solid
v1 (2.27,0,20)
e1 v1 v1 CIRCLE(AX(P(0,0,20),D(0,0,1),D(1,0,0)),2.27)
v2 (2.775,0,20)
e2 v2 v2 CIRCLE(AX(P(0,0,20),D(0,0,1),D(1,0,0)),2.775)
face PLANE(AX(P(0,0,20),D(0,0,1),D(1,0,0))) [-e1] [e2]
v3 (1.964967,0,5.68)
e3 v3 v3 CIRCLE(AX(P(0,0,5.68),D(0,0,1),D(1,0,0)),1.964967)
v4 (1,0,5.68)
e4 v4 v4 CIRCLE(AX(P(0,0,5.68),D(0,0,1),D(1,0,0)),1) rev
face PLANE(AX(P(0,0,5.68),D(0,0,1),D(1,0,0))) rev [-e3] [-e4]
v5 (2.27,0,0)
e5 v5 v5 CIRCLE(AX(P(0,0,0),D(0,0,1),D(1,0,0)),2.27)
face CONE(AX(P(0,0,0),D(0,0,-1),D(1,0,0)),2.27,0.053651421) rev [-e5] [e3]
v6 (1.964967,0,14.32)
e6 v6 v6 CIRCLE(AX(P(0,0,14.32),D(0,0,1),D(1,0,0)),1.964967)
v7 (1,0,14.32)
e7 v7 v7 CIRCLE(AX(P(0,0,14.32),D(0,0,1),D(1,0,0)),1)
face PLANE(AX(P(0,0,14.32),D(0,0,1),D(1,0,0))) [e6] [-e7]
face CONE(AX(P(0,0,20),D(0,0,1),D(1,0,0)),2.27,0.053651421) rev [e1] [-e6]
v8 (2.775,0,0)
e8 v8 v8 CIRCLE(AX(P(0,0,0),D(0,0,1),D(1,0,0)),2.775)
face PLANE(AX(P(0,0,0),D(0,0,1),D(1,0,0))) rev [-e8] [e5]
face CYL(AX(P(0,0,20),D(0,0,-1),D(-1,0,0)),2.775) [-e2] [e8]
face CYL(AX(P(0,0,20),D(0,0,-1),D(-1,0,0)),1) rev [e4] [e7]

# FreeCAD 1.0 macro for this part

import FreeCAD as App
import Part
import Sketcher
from FreeCAD import Vector
Q = App.Units.Quantity

doc = App.newDocument("Part")
params = doc.addObject("Spreadsheet::Sheet", "Params")
for row, (alias, value) in enumerate([
    ("sketch1_diameter", "5.55 mm"),
    ("pad1_length", "20 mm"),
    ("sketch2_diameter", "4.54 mm"),
    ("pocket1_length", "5.68 mm"),
    ("pocket1_taper", "-3.074 deg"),
    ("sketch3_diameter", "2 mm"),
    ("sketch4_diameter", "4.54 mm"),
    ("pocket3_length", "5.68 mm"),
    ("pocket3_taper", "-3.074 deg"),
], start=1):
    params.set(f"A{row}", alias)
    params.set(f"B{row}", "=" + value)
    params.setAlias(f"B{row}", alias)

body = doc.addObject("PartDesign::Body", "Body")

sketch1 = body.newObject("Sketcher::SketchObject", "Sketch")
sketch1.AttachmentSupport = (doc.getObject("XY_Plane"), [""])
sketch1.MapMode = "FlatFace"
sketch1.addGeometry(Part.Circle(Vector(0, 0, 0), Vector(0, 0, 1), 2.8), False)
sketch1.addConstraint([
    Sketcher.Constraint("Coincident", 0, 3, -1, 1),
    Sketcher.Constraint("Diameter", 0, Q("5.55 mm")),
])
sketch1.setExpression("Constraints[1]", "Params.sketch1_diameter")
pad1 = body.newObject("PartDesign::Pad", "Pad")
pad1.Profile = sketch1
pad1.setExpression("Length", "Params.pad1_length")

sketch2 = body.newObject("Sketcher::SketchObject", "Sketch001")
sketch2.AttachmentSupport = (doc.getObject("XY_Plane"), [""])
sketch2.MapMode = "FlatFace"
sketch2.addGeometry(Part.Circle(Vector(0, 0, 0), Vector(0, 0, 1), 2.3), False)
sketch2.addConstraint([
    Sketcher.Constraint("Coincident", 0, 3, -1, 1),
    Sketcher.Constraint("Diameter", 0, Q("4.54 mm")),
])
sketch2.setExpression("Constraints[1]", "Params.sketch2_diameter")
pocket1 = body.newObject("PartDesign::Pocket", "Pocket")
pocket1.Profile = sketch2
pocket1.setExpression("Length", "Params.pocket1_length")
pocket1.Reversed = True
pocket1.setExpression("TaperAngle", "Params.pocket1_taper")

sketch3 = body.newObject("Sketcher::SketchObject", "Sketch002")
sketch3.AttachmentSupport = (doc.getObject("XY_Plane"), [""])
sketch3.MapMode = "FlatFace"
sketch3.addGeometry(Part.Circle(Vector(0, 0, 0), Vector(0, 0, 1), 1), False)
sketch3.addConstraint([
    Sketcher.Constraint("Coincident", 0, 3, -1, 1),
    Sketcher.Constraint("Diameter", 0, Q("2 mm")),
])
sketch3.setExpression("Constraints[1]", "Params.sketch3_diameter")
pocket2 = body.newObject("PartDesign::Pocket", "Pocket001")
pocket2.Profile = sketch3
pocket2.Type = "ThroughAll"
pocket2.Reversed = True

sketch4 = body.newObject("Sketcher::SketchObject", "Sketch003")
sketch4.AttachmentSupport = (doc.getObject("XY_Plane"), [""])
sketch4.MapMode = "FlatFace"
sketch4.AttachmentOffset = App.Placement(Vector(0, 0, 20), App.Rotation())
sketch4.addGeometry(Part.Circle(Vector(0, 0, 0), Vector(0, 0, 1), 2.3), False)
sketch4.addConstraint([
    Sketcher.Constraint("Coincident", 0, 3, -1, 1),
    Sketcher.Constraint("Diameter", 0, Q("4.54 mm")),
])
sketch4.setExpression("Constraints[1]", "Params.sketch4_diameter")
pocket3 = body.newObject("PartDesign::Pocket", "Pocket002")
pocket3.Profile = sketch4
pocket3.setExpression("Length", "Params.pocket3_length")
pocket3.setExpression("TaperAngle", "Params.pocket3_taper")

doc.recompute()
